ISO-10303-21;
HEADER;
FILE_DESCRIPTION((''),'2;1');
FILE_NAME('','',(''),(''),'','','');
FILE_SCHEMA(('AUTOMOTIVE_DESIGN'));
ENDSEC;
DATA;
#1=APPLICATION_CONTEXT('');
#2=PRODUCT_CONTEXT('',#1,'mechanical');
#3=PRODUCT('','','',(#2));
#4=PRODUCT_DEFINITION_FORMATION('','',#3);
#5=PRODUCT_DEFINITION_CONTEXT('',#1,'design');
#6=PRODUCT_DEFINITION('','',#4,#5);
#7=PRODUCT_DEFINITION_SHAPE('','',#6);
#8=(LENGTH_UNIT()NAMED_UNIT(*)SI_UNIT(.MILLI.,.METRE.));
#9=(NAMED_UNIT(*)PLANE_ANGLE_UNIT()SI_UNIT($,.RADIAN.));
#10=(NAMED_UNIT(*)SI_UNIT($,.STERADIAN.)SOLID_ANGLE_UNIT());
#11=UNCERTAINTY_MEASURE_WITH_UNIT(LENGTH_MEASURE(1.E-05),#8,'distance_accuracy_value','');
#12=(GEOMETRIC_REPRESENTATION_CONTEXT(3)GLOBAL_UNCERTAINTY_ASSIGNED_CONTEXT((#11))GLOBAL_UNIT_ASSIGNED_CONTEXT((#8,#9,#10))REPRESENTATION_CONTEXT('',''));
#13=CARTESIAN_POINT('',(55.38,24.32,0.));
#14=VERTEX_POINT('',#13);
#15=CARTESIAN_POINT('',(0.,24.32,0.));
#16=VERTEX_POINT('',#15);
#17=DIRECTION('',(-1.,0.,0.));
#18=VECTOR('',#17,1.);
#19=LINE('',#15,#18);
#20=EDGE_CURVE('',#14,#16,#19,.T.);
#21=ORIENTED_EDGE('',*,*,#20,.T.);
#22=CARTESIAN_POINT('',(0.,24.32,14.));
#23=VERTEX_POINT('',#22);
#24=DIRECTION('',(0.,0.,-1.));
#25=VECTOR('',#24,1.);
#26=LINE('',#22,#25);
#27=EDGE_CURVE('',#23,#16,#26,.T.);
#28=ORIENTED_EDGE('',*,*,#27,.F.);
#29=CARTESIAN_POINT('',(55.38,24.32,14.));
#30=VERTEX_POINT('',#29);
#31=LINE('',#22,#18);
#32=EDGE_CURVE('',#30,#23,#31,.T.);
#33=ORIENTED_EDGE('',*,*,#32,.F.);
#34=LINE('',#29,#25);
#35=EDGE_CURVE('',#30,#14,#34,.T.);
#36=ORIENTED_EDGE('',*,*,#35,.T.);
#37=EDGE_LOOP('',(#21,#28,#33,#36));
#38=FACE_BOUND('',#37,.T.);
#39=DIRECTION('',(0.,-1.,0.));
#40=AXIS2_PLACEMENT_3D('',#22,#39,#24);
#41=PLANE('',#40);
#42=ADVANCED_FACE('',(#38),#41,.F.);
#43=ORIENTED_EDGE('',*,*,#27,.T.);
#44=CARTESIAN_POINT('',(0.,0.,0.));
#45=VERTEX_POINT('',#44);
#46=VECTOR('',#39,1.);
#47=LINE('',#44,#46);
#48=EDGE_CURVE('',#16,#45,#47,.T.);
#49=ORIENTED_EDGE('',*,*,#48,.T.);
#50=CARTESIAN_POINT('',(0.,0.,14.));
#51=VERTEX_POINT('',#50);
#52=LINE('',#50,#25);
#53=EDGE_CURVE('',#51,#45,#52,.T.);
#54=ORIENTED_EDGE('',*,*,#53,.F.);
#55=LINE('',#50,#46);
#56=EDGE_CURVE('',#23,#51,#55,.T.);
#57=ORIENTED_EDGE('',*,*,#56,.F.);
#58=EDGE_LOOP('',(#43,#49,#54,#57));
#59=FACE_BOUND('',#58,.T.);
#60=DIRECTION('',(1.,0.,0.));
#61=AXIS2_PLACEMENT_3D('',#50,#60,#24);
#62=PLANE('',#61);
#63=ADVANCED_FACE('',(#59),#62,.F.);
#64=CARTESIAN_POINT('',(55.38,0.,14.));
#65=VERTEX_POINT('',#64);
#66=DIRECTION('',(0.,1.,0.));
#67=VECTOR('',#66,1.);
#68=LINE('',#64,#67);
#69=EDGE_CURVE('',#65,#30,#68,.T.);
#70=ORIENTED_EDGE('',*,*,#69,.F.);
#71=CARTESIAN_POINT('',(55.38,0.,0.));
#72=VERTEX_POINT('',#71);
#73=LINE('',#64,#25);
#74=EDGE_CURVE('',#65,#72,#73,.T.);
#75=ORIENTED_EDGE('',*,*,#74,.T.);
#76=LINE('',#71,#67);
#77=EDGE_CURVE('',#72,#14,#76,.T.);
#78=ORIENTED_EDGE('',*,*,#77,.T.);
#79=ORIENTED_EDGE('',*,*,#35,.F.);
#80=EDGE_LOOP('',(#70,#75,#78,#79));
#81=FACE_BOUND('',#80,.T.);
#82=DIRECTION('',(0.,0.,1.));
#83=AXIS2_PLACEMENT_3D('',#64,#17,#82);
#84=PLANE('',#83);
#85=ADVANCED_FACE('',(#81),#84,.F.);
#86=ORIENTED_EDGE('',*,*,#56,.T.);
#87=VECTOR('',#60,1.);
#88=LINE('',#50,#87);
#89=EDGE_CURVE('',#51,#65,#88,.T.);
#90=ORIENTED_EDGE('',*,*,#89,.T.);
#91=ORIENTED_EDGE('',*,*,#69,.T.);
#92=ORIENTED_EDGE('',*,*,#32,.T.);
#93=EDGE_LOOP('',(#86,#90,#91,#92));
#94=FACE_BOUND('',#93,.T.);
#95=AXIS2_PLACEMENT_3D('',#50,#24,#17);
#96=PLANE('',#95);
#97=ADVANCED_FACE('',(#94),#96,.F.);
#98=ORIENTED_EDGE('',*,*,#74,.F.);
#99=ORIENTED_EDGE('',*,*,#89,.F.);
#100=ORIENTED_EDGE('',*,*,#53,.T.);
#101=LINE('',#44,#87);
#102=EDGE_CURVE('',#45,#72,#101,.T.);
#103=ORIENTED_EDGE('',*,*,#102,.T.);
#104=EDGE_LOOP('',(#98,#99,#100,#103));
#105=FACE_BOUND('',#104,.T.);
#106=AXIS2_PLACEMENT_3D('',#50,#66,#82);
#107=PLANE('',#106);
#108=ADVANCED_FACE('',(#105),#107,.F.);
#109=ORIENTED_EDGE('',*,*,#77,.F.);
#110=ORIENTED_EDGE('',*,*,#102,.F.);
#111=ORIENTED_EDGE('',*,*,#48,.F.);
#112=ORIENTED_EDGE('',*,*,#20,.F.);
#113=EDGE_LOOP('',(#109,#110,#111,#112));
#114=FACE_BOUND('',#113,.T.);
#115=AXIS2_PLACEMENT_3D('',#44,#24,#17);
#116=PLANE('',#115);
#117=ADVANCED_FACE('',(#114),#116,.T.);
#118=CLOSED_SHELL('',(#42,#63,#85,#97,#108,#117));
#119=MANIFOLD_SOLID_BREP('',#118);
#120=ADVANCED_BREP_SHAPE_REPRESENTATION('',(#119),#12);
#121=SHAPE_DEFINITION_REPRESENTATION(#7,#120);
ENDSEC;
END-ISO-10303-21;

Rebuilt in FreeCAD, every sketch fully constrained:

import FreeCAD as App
import Part
import Sketcher

V = App.Vector
Q = App.Units.Quantity


def add_polygon(sketch, points):
    """Adds a closed chain of lines whose ends are joined by coincident constraints."""
    first, n = sketch.GeometryCount, len(points)
    for a, b in zip(points, points[1:] + points[:1]):
        sketch.addGeometry(Part.LineSegment(App.Vector(*a, 0), App.Vector(*b, 0)), False)
    for i in range(n):
        sketch.addConstraint(Sketcher.Constraint("Coincident", first + i, 2, first + (i + 1) % n, 1))

doc = App.newDocument("Part")
body = doc.addObject("PartDesign::Body", "Body")

sketch1 = doc.addObject("Sketcher::SketchObject", "Sketch")
body.addObject(sketch1)
sketch1.AttachmentSupport = (doc.XY_Plane, [""])
sketch1.MapMode = "FlatFace"
add_polygon(sketch1, [(0, 24.32), (0, 0), (55.38, 0), (55.38, 24.32)])
sketch1.addConstraint([
    Sketcher.Constraint("Vertical", 0),
    Sketcher.Constraint("Horizontal", 1),
    Sketcher.Constraint("Vertical", 2),
    Sketcher.Constraint("Horizontal", 3),
    Sketcher.Constraint("Coincident", 0, 2, -1, 1),
    Sketcher.Constraint("DistanceX", 1, 1, 1, 2, Q("55.38 mm")),
    Sketcher.Constraint("DistanceY", 0, 2, 0, 1, Q("24.32 mm")),
])
pad1 = doc.addObject("PartDesign::Pad", "Pad")
body.addObject(pad1)
pad1.Profile = sketch1
pad1.Length = 14

doc.recompute()
